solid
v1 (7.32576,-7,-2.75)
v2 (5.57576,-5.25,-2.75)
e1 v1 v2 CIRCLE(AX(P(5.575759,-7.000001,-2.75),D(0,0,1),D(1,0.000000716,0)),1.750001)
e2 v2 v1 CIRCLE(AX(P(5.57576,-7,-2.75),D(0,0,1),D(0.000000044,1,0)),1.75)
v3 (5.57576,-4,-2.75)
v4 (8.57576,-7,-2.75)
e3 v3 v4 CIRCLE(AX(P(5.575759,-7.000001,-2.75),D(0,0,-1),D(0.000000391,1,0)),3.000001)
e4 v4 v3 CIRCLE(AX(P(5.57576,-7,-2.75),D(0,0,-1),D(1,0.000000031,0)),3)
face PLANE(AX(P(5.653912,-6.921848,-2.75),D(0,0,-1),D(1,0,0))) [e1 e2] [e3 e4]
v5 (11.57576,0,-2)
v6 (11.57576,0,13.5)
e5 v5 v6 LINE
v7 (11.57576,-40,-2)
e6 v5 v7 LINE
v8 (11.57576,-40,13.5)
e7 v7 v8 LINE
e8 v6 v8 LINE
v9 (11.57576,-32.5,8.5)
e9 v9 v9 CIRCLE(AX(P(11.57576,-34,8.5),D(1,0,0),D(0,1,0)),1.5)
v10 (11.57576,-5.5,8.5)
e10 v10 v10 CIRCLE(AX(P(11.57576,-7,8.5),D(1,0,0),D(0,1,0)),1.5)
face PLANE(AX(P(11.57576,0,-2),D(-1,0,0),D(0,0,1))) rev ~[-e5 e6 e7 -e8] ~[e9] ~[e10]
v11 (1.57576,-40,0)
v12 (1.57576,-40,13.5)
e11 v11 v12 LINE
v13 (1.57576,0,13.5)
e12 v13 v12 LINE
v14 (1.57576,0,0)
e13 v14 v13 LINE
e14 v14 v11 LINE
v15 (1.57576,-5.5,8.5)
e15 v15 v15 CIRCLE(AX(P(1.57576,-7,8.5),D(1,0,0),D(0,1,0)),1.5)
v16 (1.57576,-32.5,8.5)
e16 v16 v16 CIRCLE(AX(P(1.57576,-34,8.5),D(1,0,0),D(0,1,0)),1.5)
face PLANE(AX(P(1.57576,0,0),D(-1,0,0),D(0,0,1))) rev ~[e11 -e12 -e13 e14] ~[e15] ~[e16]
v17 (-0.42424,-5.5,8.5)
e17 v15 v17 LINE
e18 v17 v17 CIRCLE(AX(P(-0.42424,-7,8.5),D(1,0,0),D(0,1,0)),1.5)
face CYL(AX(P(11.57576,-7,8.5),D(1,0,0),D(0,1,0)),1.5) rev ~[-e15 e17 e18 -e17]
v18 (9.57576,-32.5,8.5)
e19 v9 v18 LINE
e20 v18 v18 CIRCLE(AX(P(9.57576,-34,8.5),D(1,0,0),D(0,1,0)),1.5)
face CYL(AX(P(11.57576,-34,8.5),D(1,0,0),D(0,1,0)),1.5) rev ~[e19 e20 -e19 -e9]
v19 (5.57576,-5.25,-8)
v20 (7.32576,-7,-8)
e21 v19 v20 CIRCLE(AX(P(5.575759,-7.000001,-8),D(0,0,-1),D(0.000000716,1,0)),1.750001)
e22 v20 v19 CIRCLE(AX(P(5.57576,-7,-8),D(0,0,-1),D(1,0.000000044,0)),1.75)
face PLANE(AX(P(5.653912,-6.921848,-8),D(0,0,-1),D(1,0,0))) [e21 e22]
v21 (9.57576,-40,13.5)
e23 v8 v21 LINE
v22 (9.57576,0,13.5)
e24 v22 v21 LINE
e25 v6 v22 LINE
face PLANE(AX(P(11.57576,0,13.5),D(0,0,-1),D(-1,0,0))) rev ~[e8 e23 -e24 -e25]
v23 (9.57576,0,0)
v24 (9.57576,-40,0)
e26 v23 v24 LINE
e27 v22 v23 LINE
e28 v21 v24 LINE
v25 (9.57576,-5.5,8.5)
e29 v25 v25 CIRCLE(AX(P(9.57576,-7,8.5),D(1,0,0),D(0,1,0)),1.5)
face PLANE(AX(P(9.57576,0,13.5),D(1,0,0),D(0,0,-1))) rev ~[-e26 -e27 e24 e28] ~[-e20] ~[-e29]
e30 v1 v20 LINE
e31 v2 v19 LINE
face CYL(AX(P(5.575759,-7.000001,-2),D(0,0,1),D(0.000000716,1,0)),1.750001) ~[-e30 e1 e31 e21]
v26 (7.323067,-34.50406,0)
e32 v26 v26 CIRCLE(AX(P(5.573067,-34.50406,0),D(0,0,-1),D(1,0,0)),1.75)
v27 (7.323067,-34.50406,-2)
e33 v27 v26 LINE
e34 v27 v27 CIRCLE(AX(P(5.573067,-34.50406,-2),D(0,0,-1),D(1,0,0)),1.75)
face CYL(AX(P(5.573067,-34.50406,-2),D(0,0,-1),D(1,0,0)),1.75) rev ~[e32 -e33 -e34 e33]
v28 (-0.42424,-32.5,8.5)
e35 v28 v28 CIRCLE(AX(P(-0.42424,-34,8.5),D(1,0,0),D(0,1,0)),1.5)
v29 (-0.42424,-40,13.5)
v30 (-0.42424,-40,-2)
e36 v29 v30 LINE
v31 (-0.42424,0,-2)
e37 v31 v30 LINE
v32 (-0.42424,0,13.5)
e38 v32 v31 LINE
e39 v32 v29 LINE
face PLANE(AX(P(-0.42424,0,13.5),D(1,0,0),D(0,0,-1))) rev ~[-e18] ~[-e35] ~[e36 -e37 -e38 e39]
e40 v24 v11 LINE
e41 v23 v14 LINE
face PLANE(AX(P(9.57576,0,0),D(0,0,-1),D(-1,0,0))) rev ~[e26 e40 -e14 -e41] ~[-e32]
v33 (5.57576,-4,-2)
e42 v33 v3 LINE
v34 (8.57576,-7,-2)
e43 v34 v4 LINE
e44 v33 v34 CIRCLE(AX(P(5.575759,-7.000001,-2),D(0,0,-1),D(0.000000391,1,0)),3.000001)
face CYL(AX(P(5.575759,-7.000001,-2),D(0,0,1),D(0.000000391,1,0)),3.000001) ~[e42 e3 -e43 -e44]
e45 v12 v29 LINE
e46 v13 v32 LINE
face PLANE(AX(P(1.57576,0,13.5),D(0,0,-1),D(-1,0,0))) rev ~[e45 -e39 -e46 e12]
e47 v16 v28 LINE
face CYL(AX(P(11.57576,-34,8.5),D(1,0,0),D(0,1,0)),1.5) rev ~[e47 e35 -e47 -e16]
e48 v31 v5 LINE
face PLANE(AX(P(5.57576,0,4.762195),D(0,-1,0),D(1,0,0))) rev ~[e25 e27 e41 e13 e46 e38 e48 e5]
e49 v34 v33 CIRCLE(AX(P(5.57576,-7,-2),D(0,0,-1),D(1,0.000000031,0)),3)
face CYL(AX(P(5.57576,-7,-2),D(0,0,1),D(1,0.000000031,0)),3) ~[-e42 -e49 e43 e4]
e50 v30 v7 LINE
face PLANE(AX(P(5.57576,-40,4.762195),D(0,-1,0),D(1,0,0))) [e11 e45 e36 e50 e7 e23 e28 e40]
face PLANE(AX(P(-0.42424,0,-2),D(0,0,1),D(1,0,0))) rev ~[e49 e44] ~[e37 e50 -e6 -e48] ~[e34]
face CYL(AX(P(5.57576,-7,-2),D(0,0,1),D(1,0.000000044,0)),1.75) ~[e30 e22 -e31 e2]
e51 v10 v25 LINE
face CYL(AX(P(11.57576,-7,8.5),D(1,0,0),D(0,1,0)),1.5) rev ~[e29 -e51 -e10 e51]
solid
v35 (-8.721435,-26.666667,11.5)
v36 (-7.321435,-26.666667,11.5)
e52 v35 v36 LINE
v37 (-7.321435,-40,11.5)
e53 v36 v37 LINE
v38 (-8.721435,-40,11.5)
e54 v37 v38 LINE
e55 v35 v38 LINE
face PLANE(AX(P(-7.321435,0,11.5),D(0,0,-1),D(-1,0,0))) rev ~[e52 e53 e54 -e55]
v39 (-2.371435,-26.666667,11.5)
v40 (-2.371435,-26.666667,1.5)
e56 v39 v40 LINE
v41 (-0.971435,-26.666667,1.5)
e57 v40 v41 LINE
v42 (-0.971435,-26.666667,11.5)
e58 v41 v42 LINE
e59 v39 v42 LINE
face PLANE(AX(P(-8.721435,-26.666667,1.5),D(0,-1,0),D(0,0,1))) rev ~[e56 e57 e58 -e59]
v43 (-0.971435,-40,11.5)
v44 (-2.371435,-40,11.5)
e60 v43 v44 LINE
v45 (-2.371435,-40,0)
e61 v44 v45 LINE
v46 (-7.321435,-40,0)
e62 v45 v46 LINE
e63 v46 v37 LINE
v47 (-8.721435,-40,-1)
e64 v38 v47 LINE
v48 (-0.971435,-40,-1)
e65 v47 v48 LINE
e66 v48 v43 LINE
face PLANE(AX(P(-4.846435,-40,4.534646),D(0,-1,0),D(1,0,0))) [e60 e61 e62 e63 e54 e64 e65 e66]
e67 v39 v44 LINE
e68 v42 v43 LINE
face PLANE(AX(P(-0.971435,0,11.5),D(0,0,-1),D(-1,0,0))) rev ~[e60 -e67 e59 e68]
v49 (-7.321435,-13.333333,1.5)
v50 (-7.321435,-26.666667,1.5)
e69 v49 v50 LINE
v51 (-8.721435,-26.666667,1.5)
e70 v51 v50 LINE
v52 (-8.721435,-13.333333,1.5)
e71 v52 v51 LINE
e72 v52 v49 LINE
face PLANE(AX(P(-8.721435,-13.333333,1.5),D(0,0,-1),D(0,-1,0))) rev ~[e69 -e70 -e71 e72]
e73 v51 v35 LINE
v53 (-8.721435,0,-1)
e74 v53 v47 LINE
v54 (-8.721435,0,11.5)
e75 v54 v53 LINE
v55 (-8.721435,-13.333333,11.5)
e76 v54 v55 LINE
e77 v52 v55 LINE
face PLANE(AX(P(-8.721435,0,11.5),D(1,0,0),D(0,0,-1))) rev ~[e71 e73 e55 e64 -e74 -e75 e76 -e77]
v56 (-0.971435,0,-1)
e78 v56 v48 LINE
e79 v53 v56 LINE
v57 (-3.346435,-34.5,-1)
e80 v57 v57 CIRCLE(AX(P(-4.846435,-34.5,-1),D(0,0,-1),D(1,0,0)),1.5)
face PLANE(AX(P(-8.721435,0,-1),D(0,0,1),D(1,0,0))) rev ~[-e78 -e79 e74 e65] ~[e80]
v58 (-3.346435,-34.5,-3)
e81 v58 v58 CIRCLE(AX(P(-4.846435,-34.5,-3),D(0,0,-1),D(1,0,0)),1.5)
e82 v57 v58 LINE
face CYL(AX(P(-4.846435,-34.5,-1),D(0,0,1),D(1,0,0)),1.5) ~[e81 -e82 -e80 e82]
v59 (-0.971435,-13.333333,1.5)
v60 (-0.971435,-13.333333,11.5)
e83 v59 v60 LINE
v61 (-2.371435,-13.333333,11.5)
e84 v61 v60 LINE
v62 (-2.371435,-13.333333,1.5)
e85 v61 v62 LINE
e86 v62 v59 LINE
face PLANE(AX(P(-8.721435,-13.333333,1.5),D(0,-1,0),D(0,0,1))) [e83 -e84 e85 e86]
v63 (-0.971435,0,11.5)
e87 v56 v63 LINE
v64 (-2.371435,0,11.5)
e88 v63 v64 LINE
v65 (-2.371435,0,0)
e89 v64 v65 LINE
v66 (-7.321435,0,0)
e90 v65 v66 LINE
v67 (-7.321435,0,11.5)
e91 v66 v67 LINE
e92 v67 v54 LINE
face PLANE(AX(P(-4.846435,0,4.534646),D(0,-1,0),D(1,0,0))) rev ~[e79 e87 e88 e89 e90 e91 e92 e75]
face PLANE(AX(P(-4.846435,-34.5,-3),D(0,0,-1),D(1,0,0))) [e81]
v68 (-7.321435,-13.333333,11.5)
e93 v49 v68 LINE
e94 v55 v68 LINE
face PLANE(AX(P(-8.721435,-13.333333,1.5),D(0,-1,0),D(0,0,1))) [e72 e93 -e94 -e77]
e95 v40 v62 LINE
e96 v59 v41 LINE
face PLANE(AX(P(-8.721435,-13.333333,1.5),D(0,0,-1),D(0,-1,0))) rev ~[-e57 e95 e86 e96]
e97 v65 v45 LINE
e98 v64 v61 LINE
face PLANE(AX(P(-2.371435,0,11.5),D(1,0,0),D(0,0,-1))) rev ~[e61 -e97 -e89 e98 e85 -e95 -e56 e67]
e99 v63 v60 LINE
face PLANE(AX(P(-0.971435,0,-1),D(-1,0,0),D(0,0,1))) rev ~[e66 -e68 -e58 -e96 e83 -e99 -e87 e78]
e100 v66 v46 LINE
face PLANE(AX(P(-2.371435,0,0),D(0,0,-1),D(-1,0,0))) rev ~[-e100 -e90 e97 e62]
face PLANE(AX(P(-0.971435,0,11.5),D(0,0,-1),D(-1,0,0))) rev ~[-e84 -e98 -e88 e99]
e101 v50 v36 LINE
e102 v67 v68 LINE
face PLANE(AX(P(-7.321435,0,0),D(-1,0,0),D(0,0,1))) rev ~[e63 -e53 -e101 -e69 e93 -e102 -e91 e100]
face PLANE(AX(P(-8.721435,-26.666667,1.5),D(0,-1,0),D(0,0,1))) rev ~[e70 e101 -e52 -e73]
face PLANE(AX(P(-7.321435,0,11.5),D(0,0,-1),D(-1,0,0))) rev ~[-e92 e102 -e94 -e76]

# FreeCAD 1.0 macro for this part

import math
import FreeCAD as App
import Part
import Sketcher


def add_polygon(sketch, points):
    """Adds a closed chain of lines whose ends are joined by coincident constraints."""
    first, n = sketch.GeometryCount, len(points)
    for a, b in zip(points, points[1:] + points[:1]):
        sketch.addGeometry(Part.LineSegment(App.Vector(*a, 0), App.Vector(*b, 0)), False)
    for i in range(n):
        sketch.addConstraint(Sketcher.Constraint("Coincident", first + i, 2, first + (i + 1) % n, 1))

doc = App.newDocument("Part")
params = doc.addObject("Spreadsheet::Sheet", "Params")
for row, (alias, value) in enumerate([
    ("sketch1_width", "2 mm"),
    ("sketch1_width2", "12 mm"),
    ("sketch1_height", "13.5 mm"),
    ("sketch1_height2", "15.5 mm"),
    ("pad1_length", "40 mm"),
    ("sketch2_radius", "3 mm"),
    ("sketch2_radius2", "1.75 mm"),
    ("pad2_length", "0.75 mm"),
    ("sketch3_radius", "1.75 mm"),
    ("pad3_length", "6 mm"),
    ("sketch4_diameter", "3 mm"),
    ("pocket1_length", "12 mm"),
    ("sketch5_diameter", "3.5 mm"),
    ("pocket2_length", "2 mm"),
    ("sketch6_width", "1.4 mm"),
    ("sketch6_height", "11.5 mm"),
    ("sketch6_height2", "12.5 mm"),
    ("sketch6_width2", "4.95 mm"),
    ("pad4_length", "40 mm"),
    ("sketch7_height", "10 mm"),
    ("pocket3_length", "8 mm"),
    ("sketch8_diameter", "3 mm"),
    ("pad5_length", "2 mm"),
], start=1):
    params.set(f"A{row}", alias)
    params.set(f"B{row}", "=" + value)
    params.setAlias(f"B{row}", alias)

body = doc.addObject("PartDesign::Body", "Body")

# Sketch on XZ plane
sketch1 = body.newObject("Sketcher::SketchObject", "Sketch")
sketch1.AttachmentSupport = (doc.getObject("XZ_Plane"), [""])
sketch1.MapMode = "FlatFace"
add_polygon(sketch1, [(1.6, 0), (1.6, 13.5), (-0.4, 13.5), (-0.4, -2), (11.6, -2), (11.6, 13.5), (9.6, 13.5), (9.6, 0)])  # lines 0-7
sketch1.addConstraint(Sketcher.Constraint("Vertical", 0))
sketch1.addConstraint(Sketcher.Constraint("Horizontal", 1))
sketch1.addConstraint(Sketcher.Constraint("Vertical", 2))
sketch1.addConstraint(Sketcher.Constraint("Horizontal", 3))
sketch1.addConstraint(Sketcher.Constraint("Vertical", 4))
sketch1.addConstraint(Sketcher.Constraint("Horizontal", 5))
sketch1.addConstraint(Sketcher.Constraint("Vertical", 6))
sketch1.addConstraint(Sketcher.Constraint("Horizontal", 7))
sketch1.addConstraint(Sketcher.Constraint("PointOnObject", 6, 2, -1))
sketch1.addConstraint(Sketcher.Constraint("Horizontal", 1, 2, 4, 2))
sketch1.addConstraint(Sketcher.Constraint("Equal", 1, 5))
sketch1.addConstraint(Sketcher.Constraint("DistanceX", 1, 2, 1, 1, 2.0))
sketch1.addConstraint(Sketcher.Constraint("DistanceX", 3, 1, 3, 2, 12.0))
sketch1.addConstraint(Sketcher.Constraint("DistanceY", 0, 1, 0, 2, 13.5))
sketch1.addConstraint(Sketcher.Constraint("DistanceY", 2, 2, 2, 1, 15.5))
sketch1.addConstraint(Sketcher.Constraint("DistanceX", -1, 1, 0, 2, 1.57576))
sketch1.setExpression("Constraints[19]", "Params.sketch1_width")
sketch1.setExpression("Constraints[20]", "Params.sketch1_width2")
sketch1.setExpression("Constraints[21]", "Params.sketch1_height")
sketch1.setExpression("Constraints[22]", "Params.sketch1_height2")
pad1 = body.newObject("PartDesign::Pad", "Pad")
pad1.Profile = sketch1
pad1.setExpression("Length", "Params.pad1_length")

# Sketch on XY plane
sketch2 = body.newObject("Sketcher::SketchObject", "Sketch001")
sketch2.AttachmentSupport = (doc.getObject("XY_Plane"), [""])
sketch2.MapMode = "FlatFace"
sketch2.AttachmentOffset = App.Placement(App.Vector(0, 0, -2), App.Rotation())
sketch2.addGeometry(Part.ArcOfCircle(Part.Circle(App.Vector(5.6, -7, 0), App.Vector(0, 0, 1), 3), math.radians(90), math.radians(360)), False)
sketch2.addGeometry(Part.ArcOfCircle(Part.Circle(App.Vector(5.6, -7, 0), App.Vector(0, 0, 1), 3), math.radians(0), math.radians(90)), False)
sketch2.addGeometry(Part.ArcOfCircle(Part.Circle(App.Vector(5.6, -7, 0), App.Vector(0, 0, 1), 1.8), math.radians(90), math.radians(360)), False)
sketch2.addGeometry(Part.ArcOfCircle(Part.Circle(App.Vector(5.6, -7, 0), App.Vector(0, 0, 1), 1.8), math.radians(0), math.radians(90)), False)
sketch2.addConstraint(Sketcher.Constraint("Tangent", 0, 1, 1, 2))
sketch2.addConstraint(Sketcher.Constraint("Coincident", 1, 1, 0, 2))
sketch2.addConstraint(Sketcher.Constraint("Tangent", 2, 1, 3, 2))
sketch2.addConstraint(Sketcher.Constraint("Coincident", 3, 1, 2, 2))
sketch2.addConstraint(Sketcher.Constraint("Coincident", 2, 3, 0, 3))
sketch2.addConstraint(Sketcher.Constraint("Horizontal", 3, 3, 1, 1))
sketch2.addConstraint(Sketcher.Constraint("Horizontal", 1, 1, 3, 1))
sketch2.addConstraint(Sketcher.Constraint("Vertical", 3, 3, 0, 1))
sketch2.addConstraint(Sketcher.Constraint("Vertical", 0, 1, 2, 1))
sketch2.addConstraint(Sketcher.Constraint("Radius", 0, 3.0))
sketch2.addConstraint(Sketcher.Constraint("Radius", 2, 1.75))
sketch2.addConstraint(Sketcher.Constraint("DistanceY", 0, 3, -1, 1, 7.0))
sketch2.addConstraint(Sketcher.Constraint("DistanceX", -1, 1, 0, 3, 5.57576))
sketch2.setExpression("Constraints[9]", "Params.sketch2_radius")
sketch2.setExpression("Constraints[10]", "Params.sketch2_radius2")
pad2 = body.newObject("PartDesign::Pad", "Pad001")
pad2.Profile = sketch2
pad2.setExpression("Length", "Params.pad2_length")
pad2.Reversed = True

# Sketch on XY plane
sketch3 = body.newObject("Sketcher::SketchObject", "Sketch002")
sketch3.AttachmentSupport = (doc.getObject("XY_Plane"), [""])
sketch3.MapMode = "FlatFace"
sketch3.AttachmentOffset = App.Placement(App.Vector(0, 0, -2), App.Rotation())
sketch3.addGeometry(Part.ArcOfCircle(Part.Circle(App.Vector(5.6, -7, 0), App.Vector(0, 0, 1), 1.8), math.radians(90), math.radians(360)), False)
sketch3.addGeometry(Part.ArcOfCircle(Part.Circle(App.Vector(5.6, -7, 0), App.Vector(0, 0, 1), 1.8), math.radians(0), math.radians(90)), False)
sketch3.addConstraint(Sketcher.Constraint("Tangent", 0, 1, 1, 2))
sketch3.addConstraint(Sketcher.Constraint("Coincident", 1, 1, 0, 2))
sketch3.addConstraint(Sketcher.Constraint("Horizontal", 0, 3, 1, 1))
sketch3.addConstraint(Sketcher.Constraint("Vertical", 1, 3, 0, 1))
sketch3.addConstraint(Sketcher.Constraint("Radius", 0, 1.75))
sketch3.addConstraint(Sketcher.Constraint("DistanceY", 0, 3, -1, 1, 7.0))
sketch3.addConstraint(Sketcher.Constraint("DistanceX", -1, 1, 0, 3, 5.57576))
sketch3.setExpression("Constraints[4]", "Params.sketch3_radius")
pad3 = body.newObject("PartDesign::Pad", "Pad002")
pad3.Profile = sketch3
pad3.setExpression("Length", "Params.pad3_length")
pad3.Reversed = True

# Sketch on YZ plane
sketch4 = body.newObject("Sketcher::SketchObject", "Sketch003")
sketch4.AttachmentSupport = (doc.getObject("YZ_Plane"), [""])
sketch4.MapMode = "FlatFace"
sketch4.AttachmentOffset = App.Placement(App.Vector(0, 0, 11.57576), App.Rotation())
sketch4.addGeometry(Part.Circle(App.Vector(-34, 8.5, 0), App.Vector(0, 0, 1), 1.5), False)
sketch4.addGeometry(Part.Circle(App.Vector(-7, 8.5, 0), App.Vector(0, 0, 1), 1.5), False)
sketch4.addConstraint(Sketcher.Constraint("Equal", 0, 1))
sketch4.addConstraint(Sketcher.Constraint("Horizontal", 0, 3, 1, 3))
sketch4.addConstraint(Sketcher.Constraint("Diameter", 0, 3.0))
sketch4.addConstraint(Sketcher.Constraint("DistanceX", 0, 3, -1, 1, 34.0))
sketch4.addConstraint(Sketcher.Constraint("DistanceX", 1, 3, -1, 1, 7.0))
sketch4.addConstraint(Sketcher.Constraint("DistanceY", -1, 1, 0, 3, 8.5))
sketch4.setExpression("Constraints[2]", "Params.sketch4_diameter")
pocket1 = body.newObject("PartDesign::Pocket", "Pocket")
pocket1.Profile = sketch4
pocket1.setExpression("Length", "Params.pocket1_length")

# Sketch on XY plane
sketch5 = body.newObject("Sketcher::SketchObject", "Sketch004")
sketch5.AttachmentSupport = (doc.getObject("XY_Plane"), [""])
sketch5.MapMode = "FlatFace"
sketch5.AttachmentOffset = App.Placement(App.Vector(0, 0, -2), App.Rotation())
sketch5.addGeometry(Part.Circle(App.Vector(5.6, -34.5, 0), App.Vector(0, 0, 1), 1.8), False)
sketch5.addConstraint(Sketcher.Constraint("Diameter", 0, 3.5))
sketch5.addConstraint(Sketcher.Constraint("DistanceY", 0, 3, -1, 1, 34.50406))
sketch5.addConstraint(Sketcher.Constraint("DistanceX", -1, 1, 0, 3, 5.573067))
sketch5.setExpression("Constraints[0]", "Params.sketch5_diameter")
pocket2 = body.newObject("PartDesign::Pocket", "Pocket001")
pocket2.Profile = sketch5
pocket2.setExpression("Length", "Params.pocket2_length")
pocket2.Reversed = True
body2 = doc.addObject("PartDesign::Body", "Body001")

# Sketch on XZ plane
sketch6 = body2.newObject("Sketcher::SketchObject", "Sketch005")
sketch6.AttachmentSupport = (doc.getObject("XZ_Plane001"), [""])
sketch6.MapMode = "FlatFace"
add_polygon(sketch6, [(-2.4, 0), (-7.3, 0), (-7.3, 11.5), (-8.7, 11.5), (-8.7, -1), (-1, -1), (-1, 11.5), (-2.4, 11.5)])  # lines 0-7
sketch6.addConstraint(Sketcher.Constraint("Horizontal", 0))
sketch6.addConstraint(Sketcher.Constraint("Vertical", 1))
sketch6.addConstraint(Sketcher.Constraint("Horizontal", 2))
sketch6.addConstraint(Sketcher.Constraint("Vertical", 3))
sketch6.addConstraint(Sketcher.Constraint("Horizontal", 4))
sketch6.addConstraint(Sketcher.Constraint("Vertical", 5))
sketch6.addConstraint(Sketcher.Constraint("Horizontal", 6))
sketch6.addConstraint(Sketcher.Constraint("Vertical", 7))
sketch6.addConstraint(Sketcher.Constraint("PointOnObject", 0, 2, -1))
sketch6.addConstraint(Sketcher.Constraint("Horizontal", 2, 2, 5, 2))
sketch6.addConstraint(Sketcher.Constraint("Equal", 2, 6))
sketch6.addConstraint(Sketcher.Constraint("DistanceX", 2, 2, 2, 1, 1.4))
sketch6.addConstraint(Sketcher.Constraint("DistanceY", 1, 1, 1, 2, 11.5))
sketch6.addConstraint(Sketcher.Constraint("DistanceY", 3, 2, 3, 1, 12.5))
sketch6.addConstraint(Sketcher.Constraint("DistanceX", 0, 2, 0, 1, 4.95))
sketch6.addConstraint(Sketcher.Constraint("DistanceX", 0, 2, -1, 1, 7.321435))
sketch6.setExpression("Constraints[19]", "Params.sketch6_width")
sketch6.setExpression("Constraints[20]", "Params.sketch6_height")
sketch6.setExpression("Constraints[21]", "Params.sketch6_height2")
sketch6.setExpression("Constraints[22]", "Params.sketch6_width2")
pad4 = body2.newObject("PartDesign::Pad", "Pad003")
pad4.Profile = sketch6
pad4.setExpression("Length", "Params.pad4_length")

# Sketch on YZ plane
sketch7 = body2.newObject("Sketcher::SketchObject", "Sketch006")
sketch7.AttachmentSupport = (doc.getObject("YZ_Plane001"), [""])
sketch7.MapMode = "FlatFace"
sketch7.AttachmentOffset = App.Placement(App.Vector(0, 0, -8.721435), App.Rotation())
add_polygon(sketch7, [(-13, 12), (-13, 2), (-27, 2), (-27, 12)])  # lines 0-3
sketch7.addConstraint(Sketcher.Constraint("Vertical", 0))
sketch7.addConstraint(Sketcher.Constraint("Horizontal", 1))
sketch7.addConstraint(Sketcher.Constraint("Vertical", 2))
sketch7.addConstraint(Sketcher.Constraint("Horizontal", 3))
sketch7.addConstraint(Sketcher.Constraint("DistanceY", 0, 2, 0, 1, 10.0))
sketch7.addConstraint(Sketcher.Constraint("DistanceY", -1, 1, 0, 2, 1.5))
sketch7.addConstraint(Sketcher.Constraint("DistanceX", 1, 2, 1, 1, 13.333334))
sketch7.addConstraint(Sketcher.Constraint("DistanceX", 0, 2, -1, 1, 13.333333))
sketch7.setExpression("Constraints[8]", "Params.sketch7_height")
pocket3 = body2.newObject("PartDesign::Pocket", "Pocket002")
pocket3.Profile = sketch7
pocket3.setExpression("Length", "Params.pocket3_length")
pocket3.Reversed = True

# Sketch on XY plane
sketch8 = body2.newObject("Sketcher::SketchObject", "Sketch007")
sketch8.AttachmentSupport = (doc.getObject("XY_Plane001"), [""])
sketch8.MapMode = "FlatFace"
sketch8.AttachmentOffset = App.Placement(App.Vector(0, 0, -1), App.Rotation())
sketch8.addGeometry(Part.Circle(App.Vector(-4.8, -34.5, 0), App.Vector(0, 0, 1), 1.5), False)
sketch8.addConstraint(Sketcher.Constraint("Diameter", 0, 3.0))
sketch8.addConstraint(Sketcher.Constraint("DistanceY", 0, 3, -1, 1, 34.5))
sketch8.addConstraint(Sketcher.Constraint("DistanceX", 0, 3, -1, 1, 4.846435))
sketch8.setExpression("Constraints[0]", "Params.sketch8_diameter")
pad5 = body2.newObject("PartDesign::Pad", "Pad004")
pad5.Profile = sketch8
pad5.setExpression("Length", "Params.pad5_length")
pad5.Reversed = True

doc.recompute()
